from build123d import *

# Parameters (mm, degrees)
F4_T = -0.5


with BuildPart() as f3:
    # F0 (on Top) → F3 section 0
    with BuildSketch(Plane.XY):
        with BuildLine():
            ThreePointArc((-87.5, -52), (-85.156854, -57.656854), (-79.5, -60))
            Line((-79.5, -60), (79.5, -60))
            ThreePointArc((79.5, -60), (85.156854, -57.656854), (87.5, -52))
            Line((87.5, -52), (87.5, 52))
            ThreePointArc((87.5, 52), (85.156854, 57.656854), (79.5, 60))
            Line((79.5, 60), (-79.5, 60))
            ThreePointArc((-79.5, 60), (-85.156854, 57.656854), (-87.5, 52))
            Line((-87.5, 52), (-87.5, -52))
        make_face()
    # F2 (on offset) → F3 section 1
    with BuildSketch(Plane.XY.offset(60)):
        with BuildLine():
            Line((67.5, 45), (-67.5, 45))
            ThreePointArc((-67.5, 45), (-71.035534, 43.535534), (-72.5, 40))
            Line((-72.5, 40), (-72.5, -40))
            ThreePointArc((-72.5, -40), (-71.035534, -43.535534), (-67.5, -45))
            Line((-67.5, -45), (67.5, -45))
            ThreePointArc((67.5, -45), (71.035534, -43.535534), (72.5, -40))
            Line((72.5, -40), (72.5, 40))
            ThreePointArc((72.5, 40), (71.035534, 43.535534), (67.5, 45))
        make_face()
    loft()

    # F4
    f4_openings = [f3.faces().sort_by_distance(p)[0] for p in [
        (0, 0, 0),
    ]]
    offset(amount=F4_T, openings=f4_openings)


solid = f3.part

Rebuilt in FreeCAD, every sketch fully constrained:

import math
import FreeCAD as App
import Part
import Sketcher

V = App.Vector
Q = App.Units.Quantity


def faces_at(feature, points):
    """Names of the faces that lie closest to the given points."""
    faces = feature.Shape.Faces
    near = lambda p: min(range(len(faces)), key=lambda i: faces[i].distToShape(Part.Vertex(*p))[0])
    return sorted({f"Face{near(p) + 1}" for p in points})

doc = App.newDocument("Part")
body = doc.addObject("PartDesign::Body", "Body")

sketch1 = body.newObject("Sketcher::SketchObject", "Sketch")
sketch1.AttachmentSupport = (doc.getObject("XY_Plane"), [""])
sketch1.MapMode = "FlatFace"
sketch1.addGeometry([
    Part.ArcOfCircle(Part.Circle(V(-79, -52, 0), V(0, 0, 1), 8), math.radians(-180), math.radians(-90)),
    Part.LineSegment(V(-80, -60, 0), V(80, -60, 0)),
    Part.ArcOfCircle(Part.Circle(V(79, -52, 0), V(0, 0, 1), 8), math.radians(-90), math.radians(0)),
    Part.LineSegment(V(88, -52, 0), V(88, 52, 0)),
    Part.ArcOfCircle(Part.Circle(V(79, 52, 0), V(0, 0, 1), 8), math.radians(0), math.radians(90)),
    Part.LineSegment(V(80, 60, 0), V(-80, 60, 0)),
    Part.ArcOfCircle(Part.Circle(V(-79, 52, 0), V(0, 0, 1), 8), math.radians(90), math.radians(180)),
    Part.LineSegment(V(-88, 52, 0), V(-88, -52, 0)),
], False)
sketch1.addConstraint([
    Sketcher.Constraint("Tangent", 0, 2, 1, 1),
    Sketcher.Constraint("Tangent", 1, 2, 2, 1),
    Sketcher.Constraint("Tangent", 2, 2, 3, 1),
    Sketcher.Constraint("Tangent", 3, 2, 4, 1),
    Sketcher.Constraint("Tangent", 4, 2, 5, 1),
    Sketcher.Constraint("Tangent", 5, 2, 6, 1),
    Sketcher.Constraint("Tangent", 6, 2, 7, 1),
    Sketcher.Constraint("Tangent", 7, 2, 0, 1),
    Sketcher.Constraint("Horizontal", 1),
    Sketcher.Constraint("Vertical", 3),
    Sketcher.Constraint("Horizontal", 5),
    Sketcher.Constraint("Vertical", 7),
    Sketcher.Constraint("Equal", 0, 2),
    Sketcher.Constraint("Equal", 2, 4),
    Sketcher.Constraint("Equal", 4, 6),
    Sketcher.Constraint("Symmetric", 0, 3, 4, 3, -1, 1),
    Sketcher.Constraint("Radius", 0, Q("8.000001 mm")),
    Sketcher.Constraint("DistanceX", 1, 1, 1, 2, Q("159 mm")),
    Sketcher.Constraint("DistanceY", 3, 1, 3, 2, Q("104 mm")),
])

sketch2 = body.newObject("Sketcher::SketchObject", "Sketch001")
sketch2.AttachmentSupport = (doc.getObject("XY_Plane"), [""])
sketch2.MapMode = "FlatFace"
sketch2.AttachmentOffset = App.Placement(V(0, 0, 60), App.Rotation())
sketch2.addGeometry([
    Part.LineSegment(V(67.5, 45, 0), V(-67.5, 45, 0)),
    Part.ArcOfCircle(Part.Circle(V(-67.5, 40, 0), V(0, 0, 1), 5), math.radians(90), math.radians(180)),
    Part.LineSegment(V(-72.5, 40, 0), V(-72.5, -40, 0)),
    Part.ArcOfCircle(Part.Circle(V(-67.5, -40, 0), V(0, 0, 1), 5), math.radians(180), math.radians(270)),
    Part.LineSegment(V(-67.5, -45, 0), V(67.5, -45, 0)),
    Part.ArcOfCircle(Part.Circle(V(67.5, -40, 0), V(0, 0, 1), 5), math.radians(-90), math.radians(0)),
    Part.LineSegment(V(72.5, -40, 0), V(72.5, 40, 0)),
    Part.ArcOfCircle(Part.Circle(V(67.5, 40, 0), V(0, 0, 1), 5), math.radians(0), math.radians(90)),
], False)
sketch2.addConstraint([
    Sketcher.Constraint("Tangent", 0, 2, 1, 1),
    Sketcher.Constraint("Tangent", 1, 2, 2, 1),
    Sketcher.Constraint("Tangent", 2, 2, 3, 1),
    Sketcher.Constraint("Tangent", 3, 2, 4, 1),
    Sketcher.Constraint("Tangent", 4, 2, 5, 1),
    Sketcher.Constraint("Tangent", 5, 2, 6, 1),
    Sketcher.Constraint("Tangent", 6, 2, 7, 1),
    Sketcher.Constraint("Tangent", 7, 2, 0, 1),
    Sketcher.Constraint("Horizontal", 0),
    Sketcher.Constraint("Vertical", 2),
    Sketcher.Constraint("Horizontal", 4),
    Sketcher.Constraint("Vertical", 6),
    Sketcher.Constraint("Equal", 1, 3),
    Sketcher.Constraint("Equal", 3, 5),
    Sketcher.Constraint("Equal", 5, 7),
    Sketcher.Constraint("Symmetric", 1, 3, 5, 3, -1, 1),
    Sketcher.Constraint("Radius", 1, Q("5 mm")),
    Sketcher.Constraint("DistanceX", 0, 2, 0, 1, Q("135 mm")),
    Sketcher.Constraint("DistanceY", 2, 2, 2, 1, Q("80 mm")),
])

additiveloft = body.newObject("PartDesign::AdditiveLoft", "AdditiveLoft")
additiveloft.Profile = sketch1
additiveloft.Sections = [sketch2]
doc.recompute()

thickness = body.newObject("PartDesign::Thickness", "Thickness")
thickness.Base = (additiveloft, faces_at(additiveloft, [(0, 0, 0)]))
thickness.Value = 0.5
thickness.Reversed = True
thickness.Join = "Arc"

doc.recompute()
